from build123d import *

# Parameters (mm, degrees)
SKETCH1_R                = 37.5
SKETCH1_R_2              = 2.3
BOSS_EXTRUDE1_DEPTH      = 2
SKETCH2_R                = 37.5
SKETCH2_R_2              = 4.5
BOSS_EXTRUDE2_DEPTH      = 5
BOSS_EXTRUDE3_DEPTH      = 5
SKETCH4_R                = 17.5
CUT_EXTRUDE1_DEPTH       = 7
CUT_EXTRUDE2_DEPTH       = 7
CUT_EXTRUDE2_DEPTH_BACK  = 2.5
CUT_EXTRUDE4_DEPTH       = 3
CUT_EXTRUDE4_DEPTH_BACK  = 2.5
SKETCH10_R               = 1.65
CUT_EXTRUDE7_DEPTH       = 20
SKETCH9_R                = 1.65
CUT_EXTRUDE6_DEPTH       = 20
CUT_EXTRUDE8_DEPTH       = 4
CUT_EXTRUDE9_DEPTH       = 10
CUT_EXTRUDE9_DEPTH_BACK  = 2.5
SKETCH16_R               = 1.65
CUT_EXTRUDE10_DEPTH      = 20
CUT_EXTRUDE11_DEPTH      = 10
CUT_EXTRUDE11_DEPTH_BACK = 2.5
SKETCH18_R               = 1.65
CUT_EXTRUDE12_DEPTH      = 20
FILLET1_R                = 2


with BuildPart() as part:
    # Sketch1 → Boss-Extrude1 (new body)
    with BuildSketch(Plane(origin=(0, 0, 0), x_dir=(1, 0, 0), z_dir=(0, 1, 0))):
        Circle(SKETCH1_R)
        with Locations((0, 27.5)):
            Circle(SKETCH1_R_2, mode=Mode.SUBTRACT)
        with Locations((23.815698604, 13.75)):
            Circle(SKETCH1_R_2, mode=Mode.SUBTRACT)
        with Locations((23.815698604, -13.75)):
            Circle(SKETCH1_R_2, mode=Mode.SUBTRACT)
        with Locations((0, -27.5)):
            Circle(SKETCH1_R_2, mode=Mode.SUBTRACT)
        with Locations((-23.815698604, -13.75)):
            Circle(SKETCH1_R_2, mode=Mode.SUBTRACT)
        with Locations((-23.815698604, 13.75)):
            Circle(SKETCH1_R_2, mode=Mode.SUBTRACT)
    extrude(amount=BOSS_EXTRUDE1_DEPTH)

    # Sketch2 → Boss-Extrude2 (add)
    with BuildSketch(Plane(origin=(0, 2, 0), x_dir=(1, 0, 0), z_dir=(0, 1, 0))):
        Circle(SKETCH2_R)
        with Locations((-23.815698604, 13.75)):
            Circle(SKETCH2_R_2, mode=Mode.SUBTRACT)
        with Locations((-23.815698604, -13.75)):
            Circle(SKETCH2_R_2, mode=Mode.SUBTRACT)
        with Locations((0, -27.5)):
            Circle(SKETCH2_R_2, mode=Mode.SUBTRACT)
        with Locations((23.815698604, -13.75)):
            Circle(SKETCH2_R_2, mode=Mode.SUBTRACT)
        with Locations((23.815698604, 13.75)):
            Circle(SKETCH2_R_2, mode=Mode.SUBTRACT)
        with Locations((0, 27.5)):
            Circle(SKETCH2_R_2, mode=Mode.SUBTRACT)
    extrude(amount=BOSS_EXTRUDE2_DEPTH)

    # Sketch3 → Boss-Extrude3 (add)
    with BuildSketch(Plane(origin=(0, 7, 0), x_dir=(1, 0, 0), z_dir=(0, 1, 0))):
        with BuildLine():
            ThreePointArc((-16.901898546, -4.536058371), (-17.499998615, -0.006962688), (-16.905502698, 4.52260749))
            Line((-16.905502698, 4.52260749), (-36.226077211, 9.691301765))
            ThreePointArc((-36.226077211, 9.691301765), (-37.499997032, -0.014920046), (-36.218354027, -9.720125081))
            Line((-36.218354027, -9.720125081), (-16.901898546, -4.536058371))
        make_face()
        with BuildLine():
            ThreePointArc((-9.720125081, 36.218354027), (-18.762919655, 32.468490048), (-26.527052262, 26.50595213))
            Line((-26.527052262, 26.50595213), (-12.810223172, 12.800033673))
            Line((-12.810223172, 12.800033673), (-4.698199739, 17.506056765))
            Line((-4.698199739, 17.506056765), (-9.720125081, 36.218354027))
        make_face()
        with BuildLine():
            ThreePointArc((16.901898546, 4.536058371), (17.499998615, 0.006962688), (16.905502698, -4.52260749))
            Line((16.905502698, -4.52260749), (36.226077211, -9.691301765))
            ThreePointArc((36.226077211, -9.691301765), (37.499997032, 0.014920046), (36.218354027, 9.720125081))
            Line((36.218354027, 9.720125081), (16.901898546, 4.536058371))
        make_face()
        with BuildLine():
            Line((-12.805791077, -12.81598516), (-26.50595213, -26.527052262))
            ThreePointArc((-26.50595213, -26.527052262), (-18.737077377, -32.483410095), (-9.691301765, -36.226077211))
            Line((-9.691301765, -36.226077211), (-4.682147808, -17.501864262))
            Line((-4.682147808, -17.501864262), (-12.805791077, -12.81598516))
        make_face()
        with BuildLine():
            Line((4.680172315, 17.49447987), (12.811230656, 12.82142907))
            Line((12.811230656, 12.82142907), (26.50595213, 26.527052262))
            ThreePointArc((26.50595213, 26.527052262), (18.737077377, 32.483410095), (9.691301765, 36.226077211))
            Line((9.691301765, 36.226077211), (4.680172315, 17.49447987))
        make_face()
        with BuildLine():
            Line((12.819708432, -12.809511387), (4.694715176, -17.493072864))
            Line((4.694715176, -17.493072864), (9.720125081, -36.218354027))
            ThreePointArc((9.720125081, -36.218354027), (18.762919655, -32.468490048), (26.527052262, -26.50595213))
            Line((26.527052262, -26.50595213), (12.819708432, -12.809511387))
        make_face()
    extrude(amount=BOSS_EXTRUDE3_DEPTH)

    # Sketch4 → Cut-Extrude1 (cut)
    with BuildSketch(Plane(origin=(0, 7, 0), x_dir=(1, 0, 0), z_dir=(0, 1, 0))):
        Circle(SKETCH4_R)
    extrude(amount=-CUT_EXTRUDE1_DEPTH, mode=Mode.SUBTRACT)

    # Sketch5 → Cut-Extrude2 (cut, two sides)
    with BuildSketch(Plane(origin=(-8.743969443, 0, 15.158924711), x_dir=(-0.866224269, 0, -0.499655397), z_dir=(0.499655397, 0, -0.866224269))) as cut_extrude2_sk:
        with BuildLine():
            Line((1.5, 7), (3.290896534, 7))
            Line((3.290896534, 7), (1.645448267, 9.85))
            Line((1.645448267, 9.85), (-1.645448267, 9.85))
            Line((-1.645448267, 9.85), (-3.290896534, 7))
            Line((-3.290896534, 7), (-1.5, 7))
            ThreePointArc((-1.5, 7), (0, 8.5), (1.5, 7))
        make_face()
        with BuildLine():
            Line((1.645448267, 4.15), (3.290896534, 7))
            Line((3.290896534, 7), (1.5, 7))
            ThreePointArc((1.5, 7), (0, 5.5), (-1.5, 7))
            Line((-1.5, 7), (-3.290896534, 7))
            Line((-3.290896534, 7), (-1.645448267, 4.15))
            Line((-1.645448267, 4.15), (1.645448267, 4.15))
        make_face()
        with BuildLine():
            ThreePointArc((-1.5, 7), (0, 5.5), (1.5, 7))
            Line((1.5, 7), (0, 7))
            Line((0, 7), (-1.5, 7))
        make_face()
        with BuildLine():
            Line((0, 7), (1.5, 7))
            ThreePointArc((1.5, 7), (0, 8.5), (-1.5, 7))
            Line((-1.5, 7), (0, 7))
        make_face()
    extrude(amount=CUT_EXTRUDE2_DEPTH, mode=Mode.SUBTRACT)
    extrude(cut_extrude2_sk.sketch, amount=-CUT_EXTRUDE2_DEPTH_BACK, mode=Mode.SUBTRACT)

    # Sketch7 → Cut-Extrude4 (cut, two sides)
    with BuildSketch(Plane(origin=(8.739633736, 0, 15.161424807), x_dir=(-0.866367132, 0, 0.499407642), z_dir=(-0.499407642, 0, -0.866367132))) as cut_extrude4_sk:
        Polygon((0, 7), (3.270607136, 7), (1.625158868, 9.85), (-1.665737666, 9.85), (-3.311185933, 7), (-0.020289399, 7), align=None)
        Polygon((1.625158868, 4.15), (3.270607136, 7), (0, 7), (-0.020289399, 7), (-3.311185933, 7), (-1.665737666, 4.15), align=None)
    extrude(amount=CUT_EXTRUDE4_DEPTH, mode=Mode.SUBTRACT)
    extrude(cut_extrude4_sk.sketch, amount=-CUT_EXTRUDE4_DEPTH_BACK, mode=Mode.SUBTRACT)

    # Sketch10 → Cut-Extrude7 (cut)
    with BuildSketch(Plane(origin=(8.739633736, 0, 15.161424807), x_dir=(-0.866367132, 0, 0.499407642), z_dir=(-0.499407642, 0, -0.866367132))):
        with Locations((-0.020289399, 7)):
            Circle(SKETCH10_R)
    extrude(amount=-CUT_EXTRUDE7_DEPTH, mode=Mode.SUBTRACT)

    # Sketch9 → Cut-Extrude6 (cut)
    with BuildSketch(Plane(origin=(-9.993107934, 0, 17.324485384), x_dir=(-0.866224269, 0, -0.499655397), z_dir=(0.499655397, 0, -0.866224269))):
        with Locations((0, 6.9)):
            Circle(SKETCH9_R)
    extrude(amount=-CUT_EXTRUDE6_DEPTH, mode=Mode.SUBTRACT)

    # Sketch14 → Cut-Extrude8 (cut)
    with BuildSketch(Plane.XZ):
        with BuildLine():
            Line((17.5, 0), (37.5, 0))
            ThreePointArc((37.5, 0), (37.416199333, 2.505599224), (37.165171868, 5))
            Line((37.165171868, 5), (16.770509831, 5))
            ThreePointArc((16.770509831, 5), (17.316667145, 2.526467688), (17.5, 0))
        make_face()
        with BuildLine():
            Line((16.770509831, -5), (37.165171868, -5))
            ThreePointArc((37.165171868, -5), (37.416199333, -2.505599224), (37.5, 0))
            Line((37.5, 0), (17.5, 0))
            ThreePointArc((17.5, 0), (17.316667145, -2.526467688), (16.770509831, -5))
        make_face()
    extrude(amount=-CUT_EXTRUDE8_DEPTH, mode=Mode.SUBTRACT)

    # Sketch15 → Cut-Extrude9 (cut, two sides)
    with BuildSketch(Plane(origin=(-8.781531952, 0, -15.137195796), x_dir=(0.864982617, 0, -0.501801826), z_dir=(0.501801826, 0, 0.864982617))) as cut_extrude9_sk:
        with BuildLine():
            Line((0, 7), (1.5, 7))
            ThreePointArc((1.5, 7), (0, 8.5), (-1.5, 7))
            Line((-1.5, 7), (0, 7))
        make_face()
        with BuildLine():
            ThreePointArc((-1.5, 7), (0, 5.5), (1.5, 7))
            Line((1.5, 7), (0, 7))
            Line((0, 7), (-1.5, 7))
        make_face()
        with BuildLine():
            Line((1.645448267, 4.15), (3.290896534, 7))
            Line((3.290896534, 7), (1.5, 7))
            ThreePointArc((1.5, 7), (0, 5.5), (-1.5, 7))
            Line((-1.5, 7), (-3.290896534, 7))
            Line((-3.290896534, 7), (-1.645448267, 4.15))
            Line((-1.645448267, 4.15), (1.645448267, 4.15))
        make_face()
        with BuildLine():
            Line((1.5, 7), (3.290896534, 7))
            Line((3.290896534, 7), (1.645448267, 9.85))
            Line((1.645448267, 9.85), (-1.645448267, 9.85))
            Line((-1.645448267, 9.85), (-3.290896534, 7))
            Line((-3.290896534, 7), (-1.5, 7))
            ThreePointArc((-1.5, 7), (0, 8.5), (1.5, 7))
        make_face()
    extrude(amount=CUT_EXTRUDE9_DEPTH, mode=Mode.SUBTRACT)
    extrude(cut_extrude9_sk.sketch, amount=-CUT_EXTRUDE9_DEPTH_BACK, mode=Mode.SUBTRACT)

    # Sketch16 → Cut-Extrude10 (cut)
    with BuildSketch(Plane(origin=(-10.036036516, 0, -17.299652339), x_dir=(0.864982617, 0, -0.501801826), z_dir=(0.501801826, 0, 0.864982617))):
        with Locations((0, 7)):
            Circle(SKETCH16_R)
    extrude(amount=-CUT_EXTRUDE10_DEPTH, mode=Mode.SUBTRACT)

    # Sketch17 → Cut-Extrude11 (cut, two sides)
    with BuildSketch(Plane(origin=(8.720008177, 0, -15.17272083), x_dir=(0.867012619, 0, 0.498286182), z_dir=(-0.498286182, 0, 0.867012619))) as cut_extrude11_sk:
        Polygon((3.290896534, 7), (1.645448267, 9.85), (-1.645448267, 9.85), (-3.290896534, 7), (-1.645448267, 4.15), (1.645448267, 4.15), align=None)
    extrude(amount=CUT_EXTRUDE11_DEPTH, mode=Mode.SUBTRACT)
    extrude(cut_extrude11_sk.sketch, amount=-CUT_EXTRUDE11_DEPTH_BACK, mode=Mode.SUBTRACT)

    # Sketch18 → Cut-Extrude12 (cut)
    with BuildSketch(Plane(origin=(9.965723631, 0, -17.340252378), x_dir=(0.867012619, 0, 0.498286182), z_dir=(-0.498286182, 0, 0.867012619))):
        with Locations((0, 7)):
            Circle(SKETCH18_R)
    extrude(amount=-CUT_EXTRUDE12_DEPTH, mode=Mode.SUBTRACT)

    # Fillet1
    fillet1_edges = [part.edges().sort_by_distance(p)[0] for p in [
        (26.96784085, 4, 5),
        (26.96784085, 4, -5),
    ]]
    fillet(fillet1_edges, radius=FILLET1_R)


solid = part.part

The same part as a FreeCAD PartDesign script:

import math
import FreeCAD as App
import Part
import Sketcher

V = App.Vector
Q = App.Units.Quantity


def edges_at(feature, points):
    """Names of the edges that pass closest to the given points."""
    edges = feature.Shape.Edges
    near = lambda p: min(range(len(edges)), key=lambda i: edges[i].distToShape(Part.Vertex(*p))[0])
    return sorted({f"Edge{near(p) + 1}" for p in points})

doc = App.newDocument("Part")
body = doc.addObject("PartDesign::Body", "Body")

# Sketch on XZ plane
sketch1 = doc.addObject("Sketcher::SketchObject", "Sketch")
body.addObject(sketch1)
sketch1.AttachmentSupport = (doc.XZ_Plane, [""])
sketch1.MapMode = "FlatFace"
sketch1.addGeometry([
    Part.Circle(V(0, 0, 0), V(0, 0, 1), 37.5),  # 0
    Part.Circle(V(0, 27.5, 0), V(0, 0, 1), 2.3),  # 1
    Part.Circle(V(-23.8, 13.8, 0), V(0, 0, 1), 2.3),  # 2
    Part.Circle(V(23.8, 13.8, 0), V(0, 0, 1), 2.3),  # 3
    Part.Circle(V(-23.8, -13.8, 0), V(0, 0, 1), 2.3),  # 4
    Part.Circle(V(0, -27.5, 0), V(0, 0, 1), 2.3),  # 5
    Part.Circle(V(23.8, -13.8, 0), V(0, 0, 1), 2.3),  # 6
], False)
sketch1.addConstraint([
    Sketcher.Constraint("Coincident", 0, 3, -1, 1),
    Sketcher.Constraint("Equal", 1, 2),
    Sketcher.Constraint("Equal", 2, 3),
    Sketcher.Constraint("Equal", 3, 4),
    Sketcher.Constraint("Equal", 4, 5),
    Sketcher.Constraint("Equal", 5, 6),
    Sketcher.Constraint("Symmetric", 3, 3, 4, 3, -1, 1),
    Sketcher.Constraint("Symmetric", 1, 3, 5, 3, -1, 1),
    Sketcher.Constraint("Symmetric", 2, 3, 6, 3, -1, 1),
    Sketcher.Constraint("Symmetric", 2, 3, 3, 3, -2),
    Sketcher.Constraint("PointOnObject", 1, 3, -2),
    Sketcher.Constraint("Diameter", 0, Q("75 mm")),
    Sketcher.Constraint("Diameter", 1, Q("4.6 mm")),
    Sketcher.Constraint("DistanceY", 5, 3, 1, 3, Q("55 mm")),
    Sketcher.Constraint("DistanceY", 4, 3, 2, 3, Q("27.5 mm")),
    Sketcher.Constraint("DistanceX", 2, 3, -1, 1, Q("23.815699 mm")),
])
pad1 = doc.addObject("PartDesign::Pad", "Pad")
body.addObject(pad1)
pad1.Profile = sketch1
pad1.Length = 2
pad1.Reversed = True

# Sketch on XZ plane
sketch2 = doc.addObject("Sketcher::SketchObject", "Sketch001")
body.addObject(sketch2)
sketch2.AttachmentSupport = (doc.XZ_Plane, [""])
sketch2.MapMode = "FlatFace"
sketch2.AttachmentOffset = App.Placement(V(0, 0, -2), App.Rotation())
sketch2.addGeometry([
    Part.Circle(V(0, 0, 0), V(0, 0, 1), 37.5),  # 0
    Part.Circle(V(-23.8, 13.8, 0), V(0, 0, 1), 4.5),  # 1
    Part.Circle(V(0, 27.5, 0), V(0, 0, 1), 4.5),  # 2
    Part.Circle(V(23.8, 13.8, 0), V(0, 0, 1), 4.5),  # 3
    Part.Circle(V(-23.8, -13.8, 0), V(0, 0, 1), 4.5),  # 4
    Part.Circle(V(23.8, -13.8, 0), V(0, 0, 1), 4.5),  # 5
    Part.Circle(V(0, -27.5, 0), V(0, 0, 1), 4.5),  # 6
], False)
sketch2.addConstraint([
    Sketcher.Constraint("Coincident", 0, 3, -1, 1),
    Sketcher.Constraint("Equal", 1, 2),
    Sketcher.Constraint("Equal", 2, 3),
    Sketcher.Constraint("Equal", 3, 4),
    Sketcher.Constraint("Equal", 4, 5),
    Sketcher.Constraint("Equal", 5, 6),
    Sketcher.Constraint("Symmetric", 3, 3, 4, 3, -1, 1),
    Sketcher.Constraint("Symmetric", 1, 3, 5, 3, -1, 1),
    Sketcher.Constraint("Symmetric", 2, 3, 6, 3, -1, 1),
    Sketcher.Constraint("Symmetric", 1, 3, 3, 3, -2),
    Sketcher.Constraint("PointOnObject", 2, 3, -2),
    Sketcher.Constraint("Diameter", 0, Q("75 mm")),
    Sketcher.Constraint("Diameter", 1, Q("9 mm")),
    Sketcher.Constraint("DistanceY", -1, 1, 2, 3, Q("27.5 mm")),
    Sketcher.Constraint("DistanceY", 4, 3, 1, 3, Q("27.5 mm")),
    Sketcher.Constraint("DistanceX", 1, 3, -1, 1, Q("23.815699 mm")),
])
pad2 = doc.addObject("PartDesign::Pad", "Pad001")
body.addObject(pad2)
pad2.Profile = sketch2
pad2.Length = 5
pad2.Reversed = True

# Sketch on XZ plane
sketch3 = doc.addObject("Sketcher::SketchObject", "Sketch002")
body.addObject(sketch3)
sketch3.AttachmentSupport = (doc.XZ_Plane, [""])
sketch3.MapMode = "FlatFace"
sketch3.AttachmentOffset = App.Placement(V(0, 0, -7), App.Rotation())
sketch3.addGeometry([
    Part.ArcOfCircle(Part.Circle(V(0, 0, 0), V(0, 0, 1), 17), math.radians(165), math.radians(195)),  # 0
    Part.LineSegment(V(-17, -5, 0), V(-36, -10, 0)),  # 1
    Part.ArcOfCircle(Part.Circle(V(0, 0, 0), V(0, 0, 1), 38), math.radians(165), math.radians(195)),  # 2
    Part.LineSegment(V(-36, 10, 0), V(-17, 5, 0)),  # 3
    Part.ArcOfCircle(Part.Circle(V(0, 0, 0), V(0, 0, 1), 38), math.radians(-135), math.radians(-105)),  # 4
    Part.LineSegment(V(-27, -27, 0), V(-13, -13, 0)),  # 5
    Part.LineSegment(V(-13, -13, 0), V(-5, -18, 0)),  # 6
    Part.LineSegment(V(-5, -18, 0), V(-10, -36, 0)),  # 7
    Part.ArcOfCircle(Part.Circle(V(0, 0, 0), V(0, 0, 1), 17), math.radians(-15), math.radians(15)),  # 8
    Part.LineSegment(V(17, 5, 0), V(36, 10, 0)),  # 9
    Part.ArcOfCircle(Part.Circle(V(0, 0, 0), V(0, 0, 1), 38), math.radians(-15), math.radians(15)),  # 10
    Part.LineSegment(V(36, -10, 0), V(17, -5, 0)),  # 11
    Part.LineSegment(V(-13, 13, 0), V(-27, 27, 0)),  # 12
    Part.ArcOfCircle(Part.Circle(V(0, 0, 0), V(0, 0, 1), 37), math.radians(105), math.radians(135)),  # 13
    Part.LineSegment(V(-10, 36, 0), V(-5, 18, 0)),  # 14
    Part.LineSegment(V(-5, 18, 0), V(-13, 13, 0)),  # 15
    Part.LineSegment(V(5, -17, 0), V(13, -13, 0)),  # 16
    Part.LineSegment(V(13, -13, 0), V(27, -27, 0)),  # 17
    Part.ArcOfCircle(Part.Circle(V(0, 0, 0), V(0, 0, 1), 37), math.radians(-75), math.radians(-45)),  # 18
    Part.LineSegment(V(10, -36, 0), V(5, -17, 0)),  # 19
    Part.LineSegment(V(13, 13, 0), V(5, 17, 0)),  # 20
    Part.LineSegment(V(5, 17, 0), V(10, 36, 0)),  # 21
    Part.ArcOfCircle(Part.Circle(V(0, 0, 0), V(0, 0, 1), 38), math.radians(45), math.radians(75)),  # 22
    Part.LineSegment(V(27, 27, 0), V(13, 13, 0)),  # 23
], False)
sketch3.addConstraint([
    Sketcher.Constraint("Coincident", 0, 2, 1, 1),
    Sketcher.Constraint("Coincident", 1, 2, 2, 2),
    Sketcher.Constraint("Coincident", 2, 1, 3, 1),
    Sketcher.Constraint("Coincident", 3, 2, 0, 1),
    Sketcher.Constraint("Coincident", 4, 1, 5, 1),
    Sketcher.Constraint("Coincident", 5, 2, 6, 1),
    Sketcher.Constraint("Coincident", 6, 2, 7, 1),
    Sketcher.Constraint("Coincident", 7, 2, 4, 2),
    Sketcher.Constraint("Coincident", 8, 2, 9, 1),
    Sketcher.Constraint("Coincident", 9, 2, 10, 2),
    Sketcher.Constraint("Coincident", 10, 1, 11, 1),
    Sketcher.Constraint("Coincident", 11, 2, 8, 1),
    Sketcher.Constraint("Coincident", 12, 2, 13, 2),
    Sketcher.Constraint("Coincident", 13, 1, 14, 1),
    Sketcher.Constraint("Coincident", 14, 2, 15, 1),
    Sketcher.Constraint("Coincident", 15, 2, 12, 1),
    Sketcher.Constraint("Coincident", 16, 2, 17, 1),
    Sketcher.Constraint("Coincident", 17, 2, 18, 2),
    Sketcher.Constraint("Coincident", 18, 1, 19, 1),
    Sketcher.Constraint("Coincident", 19, 2, 16, 1),
    Sketcher.Constraint("Coincident", 20, 2, 21, 1),
    Sketcher.Constraint("Coincident", 21, 2, 22, 2),
    Sketcher.Constraint("Coincident", 22, 1, 23, 1),
    Sketcher.Constraint("Coincident", 23, 2, 20, 1),
    Sketcher.Constraint("Coincident", 0, 3, -1, 1),
    Sketcher.Constraint("Coincident", 2, 3, -1, 1),
    Sketcher.Constraint("Coincident", 4, 3, -1, 1),
    Sketcher.Constraint("Coincident", 8, 3, -1, 1),
    Sketcher.Constraint("Coincident", 10, 3, -1, 1),
    Sketcher.Constraint("Coincident", 13, 3, -1, 1),
    Sketcher.Constraint("Coincident", 18, 3, -1, 1),
    Sketcher.Constraint("Coincident", 22, 3, -1, 1),
    Sketcher.Constraint("Equal", 2, 4),
    Sketcher.Constraint("Equal", 0, 8),
    Sketcher.Constraint("Equal", 4, 10),
    Sketcher.Constraint("Equal", 10, 13),
    Sketcher.Constraint("Equal", 13, 18),
    Sketcher.Constraint("Equal", 18, 22),
    Sketcher.Constraint("Perpendicular", 3, 7),
    Sketcher.Constraint("Parallel", 1, 9),
    Sketcher.Constraint("Perpendicular", 7, 11),
    Sketcher.Constraint("Perpendicular", 5, 12),
    Sketcher.Constraint("Perpendicular", 9, 14),
    Sketcher.Constraint("Parallel", 12, 17),
    Sketcher.Constraint("Parallel", 14, 19),
    Sketcher.Constraint("Perpendicular", 11, 21),
    Sketcher.Constraint("Perpendicular", 17, 23),
    Sketcher.Constraint("Equal", 12, 14),
    Sketcher.Constraint("Radius", 0, Q("17.5 mm")),
    Sketcher.Constraint("Radius", 2, Q("37.5 mm")),
    Sketcher.Constraint("DistanceY", 1, 2, -1, 1, Q("9.691302 mm")),
    Sketcher.Constraint("DistanceX", 3, 2, -1, 1, Q("16.901899 mm")),
    Sketcher.Constraint("DistanceX", 6, 2, -1, 1, Q("4.6982 mm")),
    Sketcher.Constraint("DistanceY", -1, 1, 9, 2, Q("9.691302 mm")),
    Sketcher.Constraint("DistanceX", -1, 1, 11, 2, Q("16.901899 mm")),
    Sketcher.Constraint("DistanceX", 13, 1, -1, 1, Q("9.691302 mm")),
    Sketcher.Constraint("DistanceX", -1, 1, 18, 1, Q("9.691302 mm")),
    Sketcher.Constraint("DistanceY", 7, 2, 4, 1, Q("9.712402 mm")),
    Sketcher.Constraint("DistanceX", 5, 2, 7, 2, Q("3.090098 mm")),
    Sketcher.Constraint("DistanceX", 2, 1, 12, 2, Q("9.712402 mm")),
    Sketcher.Constraint("DistanceX", 17, 2, 10, 1, Q("9.712402 mm")),
    Sketcher.Constraint("DistanceY", 22, 1, 21, 2, Q("9.712402 mm")),
    Sketcher.Constraint("DistanceX", 14, 2, 22, 1, Q("31.2092 mm")),
    Sketcher.Constraint("Distance", 6, Q("9.37825 mm")),
    Sketcher.Constraint("Distance", 15, Q("9.378222 mm")),
    Sketcher.Constraint("Distance", 17, Q("19.374971 mm")),
    Sketcher.Constraint("Distance", 19, Q("19.390311 mm")),
    Sketcher.Constraint("DistanceX", 15, 2, -1, 1, Q("12.805791 mm")),
    Sketcher.Constraint("DistanceX", -1, 1, 16, 2, Q("12.811231 mm")),
    Sketcher.Constraint("DistanceX", -1, 1, 23, 2, Q("12.819708 mm")),
    Sketcher.Constraint("DistanceY", -1, 1, 23, 2, Q("12.809511 mm")),
    Sketcher.Constraint("DistanceY", 20, 2, 14, 2, Q("0.008791 mm")),
])
pad3 = doc.addObject("PartDesign::Pad", "Pad002")
body.addObject(pad3)
pad3.Profile = sketch3
pad3.Length = 5
pad3.Reversed = True

# Sketch on XZ plane
sketch4 = doc.addObject("Sketcher::SketchObject", "Sketch003")
body.addObject(sketch4)
sketch4.AttachmentSupport = (doc.XZ_Plane, [""])
sketch4.MapMode = "FlatFace"
sketch4.AttachmentOffset = App.Placement(V(0, 0, -7), App.Rotation())
sketch4.addGeometry(Part.Circle(V(0, 0, 0), V(0, 0, 1), 18), False)
sketch4.addConstraint([
    Sketcher.Constraint("Coincident", 0, 3, -1, 1),
    Sketcher.Constraint("Diameter", 0, Q("35 mm")),
])
pocket1 = doc.addObject("PartDesign::Pocket", "Pocket")
body.addObject(pocket1)
pocket1.Profile = sketch4
pocket1.Length = 7
pocket1.Reversed = True

# Sketch on an angled plane
sketch5 = doc.addObject("Sketcher::SketchObject", "Sketch004")
body.addObject(sketch5)
sketch5.Placement = App.Placement(V(-8.743969, 0, 15.158925), App.Rotation(V(-0.866224269, 0, -0.499655397), V(0, 1, 0), V(0.499655397, 0, -0.866224269), "ZXY"))
sketch5.addGeometry([
    Part.LineSegment(V(3.3, 7, 0), V(1.6, 9.8, 0)),  # 0
    Part.LineSegment(V(1.6, 9.8, 0), V(-1.6, 9.8, 0)),  # 1
    Part.LineSegment(V(-1.6, 9.8, 0), V(-3.3, 7, 0)),  # 2
    Part.LineSegment(V(-3.3, 7, 0), V(-1.6, 4.2, 0)),  # 3
    Part.LineSegment(V(-1.6, 4.2, 0), V(1.6, 4.2, 0)),  # 4
    Part.LineSegment(V(1.6, 4.2, 0), V(3.3, 7, 0)),  # 5
], False)
sketch5.addConstraint([
    Sketcher.Constraint("Coincident", 0, 2, 1, 1),
    Sketcher.Constraint("Coincident", 1, 2, 2, 1),
    Sketcher.Constraint("Coincident", 2, 2, 3, 1),
    Sketcher.Constraint("Coincident", 3, 2, 4, 1),
    Sketcher.Constraint("Coincident", 4, 2, 5, 1),
    Sketcher.Constraint("Coincident", 5, 2, 0, 1),
    Sketcher.Constraint("Horizontal", 1),
    Sketcher.Constraint("Horizontal", 4),
    Sketcher.Constraint("Symmetric", 2, 2, 5, 2, -2),
    Sketcher.Constraint("Parallel", 0, 3),
    Sketcher.Constraint("Parallel", 2, 5),
    Sketcher.Constraint("Vertical", 1, 2, 3, 2),
    Sketcher.Constraint("Vertical", 0, 2, 4, 2),
    Sketcher.Constraint("Angle", 0, Q("120 deg")),
    Sketcher.Constraint("DistanceY", -1, 1, 2, 2, Q("7 mm")),
    Sketcher.Constraint("DistanceY", 3, 2, 1, 2, Q("5.7 mm")),
    Sketcher.Constraint("DistanceX", 1, 2, 1, 1, Q("3.290897 mm")),
])
pocket2 = doc.addObject("PartDesign::Pocket", "Pocket001")
body.addObject(pocket2)
pocket2.Profile = sketch5
pocket2.Type = "TwoLengths"
pocket2.Length = 7
pocket2.Length2 = 2.5
pocket2.Reversed = True

# Sketch on an angled plane
sketch6 = doc.addObject("Sketcher::SketchObject", "Sketch005")
body.addObject(sketch6)
sketch6.Placement = App.Placement(V(8.739634, 0, 15.161425), App.Rotation(V(-0.866367132, 0, 0.499407642), V(0, 1, 0), V(-0.499407642, 0, -0.866367132), "ZXY"))
sketch6.addGeometry([
    Part.LineSegment(V(3.3, 7, 0), V(1.6, 9.9, 0)),  # 0
    Part.LineSegment(V(1.6, 9.9, 0), V(-1.7, 9.9, 0)),  # 1
    Part.LineSegment(V(-1.7, 9.9, 0), V(-3.3, 7, 0)),  # 2
    Part.LineSegment(V(-3.3, 7, 0), V(-1.7, 4.2, 0)),  # 3
    Part.LineSegment(V(-1.7, 4.2, 0), V(1.6, 4.2, 0)),  # 4
    Part.LineSegment(V(1.6, 4.2, 0), V(3.3, 7, 0)),  # 5
], False)
sketch6.addConstraint([
    Sketcher.Constraint("Coincident", 0, 2, 1, 1),
    Sketcher.Constraint("Coincident", 1, 2, 2, 1),
    Sketcher.Constraint("Coincident", 2, 2, 3, 1),
    Sketcher.Constraint("Coincident", 3, 2, 4, 1),
    Sketcher.Constraint("Coincident", 4, 2, 5, 1),
    Sketcher.Constraint("Coincident", 5, 2, 0, 1),
    Sketcher.Constraint("Horizontal", 1),
    Sketcher.Constraint("Horizontal", 4),
    Sketcher.Constraint("Parallel", 0, 3),
    Sketcher.Constraint("Parallel", 2, 5),
    Sketcher.Constraint("Horizontal", 2, 2, 5, 2),
    Sketcher.Constraint("Vertical", 1, 2, 3, 2),
    Sketcher.Constraint("Vertical", 0, 2, 4, 2),
    Sketcher.Constraint("Angle", 0, Q("120 deg")),
    Sketcher.Constraint("DistanceY", -1, 1, 2, 2, Q("7 mm")),
    Sketcher.Constraint("DistanceY", 3, 2, 1, 2, Q("5.7 mm")),
    Sketcher.Constraint("DistanceX", 1, 2, 1, 1, Q("3.290897 mm")),
    Sketcher.Constraint("DistanceX", -1, 1, 0, 2, Q("1.625159 mm")),
])
pocket3 = doc.addObject("PartDesign::Pocket", "Pocket002")
body.addObject(pocket3)
pocket3.Profile = sketch6
pocket3.Type = "TwoLengths"
pocket3.Length = 3
pocket3.Length2 = 2.5
pocket3.Reversed = True

# Sketch on an angled plane
sketch7 = doc.addObject("Sketcher::SketchObject", "Sketch006")
body.addObject(sketch7)
sketch7.Placement = App.Placement(V(8.739634, 0, 15.161425), App.Rotation(V(-0.866367132, 0, 0.499407642), V(0, 1, 0), V(-0.499407642, 0, -0.866367132), "ZXY"))
sketch7.addGeometry(Part.Circle(V(0, 7, 0), V(0, 0, 1), 1.6), False)
sketch7.addConstraint([
    Sketcher.Constraint("Diameter", 0, Q("3.3 mm")),
    Sketcher.Constraint("DistanceY", -1, 1, 0, 3, Q("7 mm")),
    Sketcher.Constraint("DistanceX", 0, 3, -1, 1, Q("0.020289 mm")),
])
pocket4 = doc.addObject("PartDesign::Pocket", "Pocket003")
body.addObject(pocket4)
pocket4.Profile = sketch7
pocket4.Length = 20

# Sketch on an angled plane
sketch8 = doc.addObject("Sketcher::SketchObject", "Sketch007")
body.addObject(sketch8)
sketch8.Placement = App.Placement(V(-9.993108, 0, 17.324485), App.Rotation(V(-0.866224269, 0, -0.499655397), V(0, 1, 0), V(0.499655397, 0, -0.866224269), "ZXY"))
sketch8.addGeometry(Part.Circle(V(0, 6.9, 0), V(0, 0, 1), 1.6), False)
sketch8.addConstraint([
    Sketcher.Constraint("PointOnObject", 0, 3, -2),
    Sketcher.Constraint("Diameter", 0, Q("3.3 mm")),
    Sketcher.Constraint("DistanceY", -1, 1, 0, 3, Q("6.9 mm")),
])
pocket5 = doc.addObject("PartDesign::Pocket", "Pocket004")
body.addObject(pocket5)
pocket5.Profile = sketch8
pocket5.Length = 20

# Sketch on XZ plane
sketch9 = doc.addObject("Sketcher::SketchObject", "Sketch008")
body.addObject(sketch9)
sketch9.AttachmentSupport = (doc.XZ_Plane, [""])
sketch9.MapMode = "FlatFace"
sketch9.addGeometry([
    Part.ArcOfCircle(Part.Circle(V(0, 0, 0), V(0, 0, 1), 37), math.radians(0), math.radians(7.66)),  # 0
    Part.LineSegment(V(37, 5, 0), V(17, 5, 0)),  # 1
    Part.ArcOfCircle(Part.Circle(V(0, 0, 0), V(0, 0, 1), 18), math.radians(0), math.radians(16.6)),  # 2
    Part.ArcOfCircle(Part.Circle(V(0, 0, 0), V(0, 0, 1), 18), math.radians(-16.6), math.radians(0)),  # 3
    Part.LineSegment(V(17, -5, 0), V(37, -5, 0)),  # 4
    Part.ArcOfCircle(Part.Circle(V(0, 0, 0), V(0, 0, 1), 37), math.radians(-7.66), math.radians(0)),  # 5
], False)
sketch9.addConstraint([
    Sketcher.Constraint("Coincident", 0, 2, 1, 1),
    Sketcher.Constraint("Coincident", 1, 2, 2, 2),
    Sketcher.Constraint("Tangent", 2, 1, 3, 2),
    Sketcher.Constraint("Coincident", 3, 1, 4, 1),
    Sketcher.Constraint("Coincident", 4, 2, 5, 1),
    Sketcher.Constraint("Tangent", 5, 2, 0, 1),
    Sketcher.Constraint("Horizontal", 1),
    Sketcher.Constraint("Horizontal", 4),
    Sketcher.Constraint("Coincident", 0, 3, -1, 1),
    Sketcher.Constraint("Coincident", 2, 3, -1, 1),
    Sketcher.Constraint("Equal", 2, 3),
    Sketcher.Constraint("Equal", 0, 5),
    Sketcher.Constraint("PointOnObject", 2, 1, -1),
    Sketcher.Constraint("PointOnObject", 5, 2, -1),
    Sketcher.Constraint("Vertical", 1, 2, 3, 1),
    Sketcher.Constraint("Radius", 0, Q("37.5 mm")),
    Sketcher.Constraint("Radius", 2, Q("17.5 mm")),
    Sketcher.Constraint("DistanceY", -1, 1, 0, 2, Q("5 mm")),
])
pocket6 = doc.addObject("PartDesign::Pocket", "Pocket005")
body.addObject(pocket6)
pocket6.Profile = sketch9
pocket6.Length = 4

# Sketch on an angled plane
sketch10 = doc.addObject("Sketcher::SketchObject", "Sketch009")
body.addObject(sketch10)
sketch10.Placement = App.Placement(V(-8.781532, 0, -15.137196), App.Rotation(V(0.864982617, 0, -0.501801826), V(0, 1, 0), V(0.501801826, 0, 0.864982617), "ZXY"))
sketch10.addGeometry([
    Part.LineSegment(V(-3.3, 7, 0), V(-1.6, 4.2, 0)),  # 0
    Part.LineSegment(V(-1.6, 4.2, 0), V(1.6, 4.2, 0)),  # 1
    Part.LineSegment(V(1.6, 4.2, 0), V(3.3, 7, 0)),  # 2
    Part.LineSegment(V(3.3, 7, 0), V(1.6, 9.9, 0)),  # 3
    Part.LineSegment(V(1.6, 9.9, 0), V(-1.6, 9.9, 0)),  # 4
    Part.LineSegment(V(-1.6, 9.9, 0), V(-3.3, 7, 0)),  # 5
], False)
sketch10.addConstraint([
    Sketcher.Constraint("Coincident", 0, 2, 1, 1),
    Sketcher.Constraint("Coincident", 1, 2, 2, 1),
    Sketcher.Constraint("Coincident", 2, 2, 3, 1),
    Sketcher.Constraint("Coincident", 3, 2, 4, 1),
    Sketcher.Constraint("Coincident", 4, 2, 5, 1),
    Sketcher.Constraint("Coincident", 5, 2, 0, 1),
    Sketcher.Constraint("Horizontal", 1),
    Sketcher.Constraint("Horizontal", 4),
    Sketcher.Constraint("Symmetric", 2, 2, 5, 2, -2),
    Sketcher.Constraint("Parallel", 0, 3),
    Sketcher.Constraint("Parallel", 2, 5),
    Sketcher.Constraint("Vertical", 1, 2, 3, 2),
    Sketcher.Constraint("Vertical", 0, 2, 4, 2),
    Sketcher.Constraint("Angle", 0, Q("-60 deg")),
    Sketcher.Constraint("DistanceY", -1, 1, 2, 2, Q("7 mm")),
    Sketcher.Constraint("DistanceY", 1, 2, 3, 2, Q("5.7 mm")),
    Sketcher.Constraint("DistanceX", 1, 1, 1, 2, Q("3.290897 mm")),
])
pocket7 = doc.addObject("PartDesign::Pocket", "Pocket006")
body.addObject(pocket7)
pocket7.Profile = sketch10
pocket7.Type = "TwoLengths"
pocket7.Length = 10
pocket7.Length2 = 2.5
pocket7.Reversed = True

# Sketch on an angled plane
sketch11 = doc.addObject("Sketcher::SketchObject", "Sketch010")
body.addObject(sketch11)
sketch11.Placement = App.Placement(V(-10.036037, 0, -17.299652), App.Rotation(V(0.864982617, 0, -0.501801826), V(0, 1, 0), V(0.501801826, 0, 0.864982617), "ZXY"))
sketch11.addGeometry(Part.Circle(V(0, 7, 0), V(0, 0, 1), 1.6), False)
sketch11.addConstraint([
    Sketcher.Constraint("PointOnObject", 0, 3, -2),
    Sketcher.Constraint("Diameter", 0, Q("3.3 mm")),
    Sketcher.Constraint("DistanceY", -1, 1, 0, 3, Q("7 mm")),
])
pocket8 = doc.addObject("PartDesign::Pocket", "Pocket007")
body.addObject(pocket8)
pocket8.Profile = sketch11
pocket8.Length = 20

# Sketch on an angled plane
sketch12 = doc.addObject("Sketcher::SketchObject", "Sketch011")
body.addObject(sketch12)
sketch12.Placement = App.Placement(V(8.720008, 0, -15.172721), App.Rotation(V(0.867012619, 0, 0.498286182), V(0, 1.000000001, 0), V(-0.498286182, 0, 0.867012619), "ZXY"))
sketch12.addGeometry([
    Part.LineSegment(V(3.3, 7, 0), V(1.6, 9.9, 0)),  # 0
    Part.LineSegment(V(1.6, 9.9, 0), V(-1.6, 9.9, 0)),  # 1
    Part.LineSegment(V(-1.6, 9.9, 0), V(-3.3, 7, 0)),  # 2
    Part.LineSegment(V(-3.3, 7, 0), V(-1.6, 4.2, 0)),  # 3
    Part.LineSegment(V(-1.6, 4.2, 0), V(1.6, 4.2, 0)),  # 4
    Part.LineSegment(V(1.6, 4.2, 0), V(3.3, 7, 0)),  # 5
], False)
sketch12.addConstraint([
    Sketcher.Constraint("Coincident", 0, 2, 1, 1),
    Sketcher.Constraint("Coincident", 1, 2, 2, 1),
    Sketcher.Constraint("Coincident", 2, 2, 3, 1),
    Sketcher.Constraint("Coincident", 3, 2, 4, 1),
    Sketcher.Constraint("Coincident", 4, 2, 5, 1),
    Sketcher.Constraint("Coincident", 5, 2, 0, 1),
    Sketcher.Constraint("Horizontal", 1),
    Sketcher.Constraint("Horizontal", 4),
    Sketcher.Constraint("Symmetric", 2, 2, 5, 2, -2),
    Sketcher.Constraint("Parallel", 0, 3),
    Sketcher.Constraint("Parallel", 2, 5),
    Sketcher.Constraint("Vertical", 1, 2, 3, 2),
    Sketcher.Constraint("Vertical", 0, 2, 4, 2),
    Sketcher.Constraint("Angle", 0, Q("120 deg")),
    Sketcher.Constraint("DistanceY", -1, 1, 2, 2, Q("7 mm")),
    Sketcher.Constraint("DistanceY", 3, 2, 1, 2, Q("5.7 mm")),
    Sketcher.Constraint("DistanceX", 1, 2, 1, 1, Q("3.290897 mm")),
])
pocket9 = doc.addObject("PartDesign::Pocket", "Pocket008")
body.addObject(pocket9)
pocket9.Profile = sketch12
pocket9.Type = "TwoLengths"
pocket9.Length = 10
pocket9.Length2 = 2.5
pocket9.Reversed = True

# Sketch on an angled plane
sketch13 = doc.addObject("Sketcher::SketchObject", "Sketch012")
body.addObject(sketch13)
sketch13.Placement = App.Placement(V(9.965724, 0, -17.340252), App.Rotation(V(0.867012619, 0, 0.498286182), V(0, 1.000000001, 0), V(-0.498286182, 0, 0.867012619), "ZXY"))
sketch13.addGeometry(Part.Circle(V(0, 7, 0), V(0, 0, 1), 1.6), False)
sketch13.addConstraint([
    Sketcher.Constraint("PointOnObject", 0, 3, -2),
    Sketcher.Constraint("Diameter", 0, Q("3.3 mm")),
    Sketcher.Constraint("DistanceY", -1, 1, 0, 3, Q("7 mm")),
])
pocket10 = doc.addObject("PartDesign::Pocket", "Pocket009")
body.addObject(pocket10)
pocket10.Profile = sketch13
pocket10.Length = 20
doc.recompute()

fillet = doc.addObject("PartDesign::Fillet", "Fillet")
body.addObject(fillet)
fillet.Base = (pocket10, edges_at(pocket10, [(26.968, 4, 5), (26.968, 4, -5)]))
fillet.Radius = 2

doc.recompute()
